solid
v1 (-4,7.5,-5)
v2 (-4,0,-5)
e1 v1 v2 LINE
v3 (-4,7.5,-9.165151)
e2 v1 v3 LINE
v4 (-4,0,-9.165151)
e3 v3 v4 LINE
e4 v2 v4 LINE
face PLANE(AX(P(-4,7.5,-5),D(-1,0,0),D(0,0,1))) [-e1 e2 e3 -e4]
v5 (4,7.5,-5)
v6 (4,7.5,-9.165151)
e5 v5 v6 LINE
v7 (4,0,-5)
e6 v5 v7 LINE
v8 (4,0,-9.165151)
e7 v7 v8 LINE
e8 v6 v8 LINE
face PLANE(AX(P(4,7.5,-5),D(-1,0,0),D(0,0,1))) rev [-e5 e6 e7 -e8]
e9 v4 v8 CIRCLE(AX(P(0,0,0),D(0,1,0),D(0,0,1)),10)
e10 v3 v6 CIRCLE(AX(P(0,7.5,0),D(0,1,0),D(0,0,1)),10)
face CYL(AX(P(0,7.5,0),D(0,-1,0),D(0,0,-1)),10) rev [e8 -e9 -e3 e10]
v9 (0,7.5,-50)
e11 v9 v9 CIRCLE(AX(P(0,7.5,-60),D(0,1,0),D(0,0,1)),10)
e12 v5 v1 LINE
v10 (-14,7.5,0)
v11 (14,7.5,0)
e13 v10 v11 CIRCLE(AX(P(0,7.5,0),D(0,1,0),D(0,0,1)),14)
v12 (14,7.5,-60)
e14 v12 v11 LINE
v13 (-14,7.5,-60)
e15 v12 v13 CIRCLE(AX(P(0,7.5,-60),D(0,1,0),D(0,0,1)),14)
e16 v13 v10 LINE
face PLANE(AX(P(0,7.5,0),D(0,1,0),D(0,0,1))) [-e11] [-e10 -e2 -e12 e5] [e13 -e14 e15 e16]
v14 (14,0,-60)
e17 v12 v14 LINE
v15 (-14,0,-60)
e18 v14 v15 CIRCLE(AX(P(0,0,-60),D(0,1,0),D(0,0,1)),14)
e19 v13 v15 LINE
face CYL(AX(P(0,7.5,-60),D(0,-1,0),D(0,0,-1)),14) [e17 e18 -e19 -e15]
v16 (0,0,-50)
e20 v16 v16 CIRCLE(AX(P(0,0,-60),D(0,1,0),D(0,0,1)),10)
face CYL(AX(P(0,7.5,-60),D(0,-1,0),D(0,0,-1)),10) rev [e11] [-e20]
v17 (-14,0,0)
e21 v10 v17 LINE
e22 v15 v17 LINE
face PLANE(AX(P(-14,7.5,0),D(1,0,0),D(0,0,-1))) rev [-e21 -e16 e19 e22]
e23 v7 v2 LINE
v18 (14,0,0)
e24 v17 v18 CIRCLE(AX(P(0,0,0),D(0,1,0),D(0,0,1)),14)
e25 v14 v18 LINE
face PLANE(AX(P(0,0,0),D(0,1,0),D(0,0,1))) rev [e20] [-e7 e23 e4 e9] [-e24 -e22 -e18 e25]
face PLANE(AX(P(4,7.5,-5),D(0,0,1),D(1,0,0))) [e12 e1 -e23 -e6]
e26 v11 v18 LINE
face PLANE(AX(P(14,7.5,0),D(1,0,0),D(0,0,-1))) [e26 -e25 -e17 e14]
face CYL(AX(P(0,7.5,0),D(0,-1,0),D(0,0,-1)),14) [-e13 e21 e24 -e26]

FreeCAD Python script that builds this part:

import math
import FreeCAD as App
import Part
import Sketcher
from FreeCAD import Vector
Q = App.Units.Quantity

doc = App.newDocument("Part")
params = doc.addObject("Spreadsheet::Sheet", "Params")
for row, (alias, value) in enumerate([
    ("sketch1_diameter", "20 mm"),
    ("sketch1_radius", "14 mm"),
    ("sketch1_width", "8 mm"),
    ("sketch1_height", "60 mm"),
    ("pad1_length", "7.5 mm"),
], start=1):
    params.set(f"A{row}", alias)
    params.set(f"B{row}", "=" + value)
    params.setAlias(f"B{row}", alias)

body = doc.addObject("PartDesign::Body", "Body")

sketch1 = body.newObject("Sketcher::SketchObject", "Sketch")
sketch1.AttachmentSupport = (doc.getObject("XZ_Plane"), [""])
sketch1.MapMode = "FlatFace"
sketch1.addGeometry([
    Part.LineSegment(Vector(14, 0, 0), Vector(14, -60, 0)),
    Part.ArcOfCircle(Part.Circle(Vector(0, -60, 0), Vector(0, 0, 1), 14), math.radians(180), math.radians(360)),
    Part.LineSegment(Vector(-14, -60, 0), Vector(-14, 0, 0)),
    Part.ArcOfCircle(Part.Circle(Vector(0, 0, 0), Vector(0, 0, 1), 14), math.radians(0), math.radians(180)),
    Part.LineSegment(Vector(4, -5, 0), Vector(4, -9.2, 0)),
    Part.ArcOfCircle(Part.Circle(Vector(0, 0, 0), Vector(0, 0, 1), 10), math.radians(-66), math.radians(246)),
    Part.LineSegment(Vector(-4, -9.2, 0), Vector(-4, -5, 0)),
    Part.LineSegment(Vector(-4, -5, 0), Vector(4, -5, 0)),
    Part.Circle(Vector(0, -60, 0), Vector(0, 0, 1), 10),
], False)
sketch1.addConstraint([
    Sketcher.Constraint("Tangent", 0, 2, 1, 2),
    Sketcher.Constraint("Tangent", 1, 1, 2, 1),
    Sketcher.Constraint("Tangent", 2, 2, 3, 2),
    Sketcher.Constraint("Tangent", 3, 1, 0, 1),
    Sketcher.Constraint("Coincident", 4, 2, 5, 1),
    Sketcher.Constraint("Coincident", 5, 2, 6, 1),
    Sketcher.Constraint("Coincident", 6, 2, 7, 1),
    Sketcher.Constraint("Coincident", 7, 2, 4, 1),
    Sketcher.Constraint("Vertical", 0),
    Sketcher.Constraint("Vertical", 2),
    Sketcher.Constraint("Vertical", 4),
    Sketcher.Constraint("Vertical", 6),
    Sketcher.Constraint("Horizontal", 7),
    Sketcher.Constraint("Coincident", 3, 3, -1, 1),
    Sketcher.Constraint("Coincident", 5, 3, -1, 1),
    Sketcher.Constraint("Coincident", 8, 3, 1, 3),
    Sketcher.Constraint("Equal", 5, 8),
    Sketcher.Constraint("Horizontal", 4, 2, 5, 2),
    Sketcher.Constraint("Diameter", 8, Q("20 mm")),
    Sketcher.Constraint("Radius", 1, Q("14 mm")),
    Sketcher.Constraint("DistanceX", 7, 1, 7, 2, Q("8 mm")),
    Sketcher.Constraint("DistanceY", 0, 2, 0, 1, Q("60 mm")),
    Sketcher.Constraint("DistanceY", 6, 2, -1, 1, Q("5 mm")),
])
sketch1.setExpression("Constraints[18]", "Params.sketch1_diameter")
sketch1.setExpression("Constraints[19]", "Params.sketch1_radius")
sketch1.setExpression("Constraints[20]", "Params.sketch1_width")
sketch1.setExpression("Constraints[21]", "Params.sketch1_height")
pad1 = body.newObject("PartDesign::Pad", "Pad")
pad1.Profile = sketch1
pad1.setExpression("Length", "Params.pad1_length")
pad1.Reversed = True

doc.recompute()
